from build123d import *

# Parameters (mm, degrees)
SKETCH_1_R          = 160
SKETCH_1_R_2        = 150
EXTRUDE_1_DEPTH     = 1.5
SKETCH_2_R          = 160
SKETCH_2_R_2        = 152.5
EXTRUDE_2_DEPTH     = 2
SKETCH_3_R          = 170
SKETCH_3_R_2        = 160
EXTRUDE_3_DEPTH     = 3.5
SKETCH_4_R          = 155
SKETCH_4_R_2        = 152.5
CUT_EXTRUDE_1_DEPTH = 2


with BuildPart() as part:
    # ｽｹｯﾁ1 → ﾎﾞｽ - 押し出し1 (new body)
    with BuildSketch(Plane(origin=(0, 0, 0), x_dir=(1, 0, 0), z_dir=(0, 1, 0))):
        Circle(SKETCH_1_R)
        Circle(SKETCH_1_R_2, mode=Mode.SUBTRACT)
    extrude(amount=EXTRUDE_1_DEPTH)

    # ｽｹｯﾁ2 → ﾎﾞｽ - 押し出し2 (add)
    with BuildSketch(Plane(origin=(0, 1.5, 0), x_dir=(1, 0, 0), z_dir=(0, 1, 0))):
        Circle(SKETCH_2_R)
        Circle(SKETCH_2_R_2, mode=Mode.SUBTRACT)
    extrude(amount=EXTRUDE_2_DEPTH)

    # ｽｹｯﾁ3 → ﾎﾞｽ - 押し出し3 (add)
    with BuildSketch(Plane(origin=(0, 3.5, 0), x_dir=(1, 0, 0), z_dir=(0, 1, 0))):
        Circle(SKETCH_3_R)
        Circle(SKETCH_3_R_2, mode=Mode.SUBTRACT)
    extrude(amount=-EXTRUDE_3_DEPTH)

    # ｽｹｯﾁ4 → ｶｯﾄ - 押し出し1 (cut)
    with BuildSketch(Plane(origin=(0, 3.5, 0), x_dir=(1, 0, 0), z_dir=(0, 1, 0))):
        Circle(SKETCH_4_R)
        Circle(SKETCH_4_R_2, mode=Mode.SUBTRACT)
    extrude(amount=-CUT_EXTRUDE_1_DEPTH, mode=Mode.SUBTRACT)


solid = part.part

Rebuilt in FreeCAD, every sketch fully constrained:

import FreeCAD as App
import Part
import Sketcher

V = App.Vector

doc = App.newDocument("Part")
params = doc.addObject("Spreadsheet::Sheet", "Params")
for row, (alias, value) in enumerate([
    ("sketch1_diameter", "320 mm"),
    ("sketch1_diameter2", "300 mm"),
    ("pad1_length", "1.5 mm"),
    ("sketch2_diameter", "320 mm"),
    ("sketch2_diameter2", "305 mm"),
    ("pad2_length", "2 mm"),
    ("sketch3_diameter", "340 mm"),
    ("sketch3_diameter2", "320 mm"),
    ("pad3_length", "3.5 mm"),
    ("sketch4_diameter", "310 mm"),
    ("sketch4_diameter2", "305 mm"),
    ("pocket1_length", "2 mm"),
], start=1):
    params.set(f"A{row}", alias)
    params.set(f"B{row}", "=" + value)
    params.setAlias(f"B{row}", alias)

body = doc.addObject("PartDesign::Body", "Body")

sketch1 = body.newObject("Sketcher::SketchObject", "Sketch")
sketch1.AttachmentSupport = (doc.getObject("XZ_Plane"), [""])
sketch1.MapMode = "FlatFace"
sketch1.addGeometry([
    Part.Circle(V(0, 0, 0), V(0, 0, 1), 160),
    Part.Circle(V(0, 0, 0), V(0, 0, 1), 150),
], False)
sketch1.addConstraint([
    Sketcher.Constraint("Coincident", 0, 3, -1, 1),
    Sketcher.Constraint("Coincident", 1, 3, -1, 1),
    Sketcher.Constraint("Diameter", 0, 320.0),
    Sketcher.Constraint("Diameter", 1, 300.0),
])
sketch1.setExpression("Constraints[2]", "Params.sketch1_diameter")
sketch1.setExpression("Constraints[3]", "Params.sketch1_diameter2")
pad1 = body.newObject("PartDesign::Pad", "Pad")
pad1.Profile = sketch1
pad1.setExpression("Length", "Params.pad1_length")
pad1.Reversed = True

sketch2 = body.newObject("Sketcher::SketchObject", "Sketch001")
sketch2.AttachmentSupport = (doc.getObject("XZ_Plane"), [""])
sketch2.MapMode = "FlatFace"
sketch2.AttachmentOffset = App.Placement(V(0, 0, -1.5), App.Rotation())
sketch2.addGeometry([
    Part.Circle(V(0, 0, 0), V(0, 0, 1), 160),
    Part.Circle(V(0, 0, 0), V(0, 0, 1), 152.5),
], False)
sketch2.addConstraint([
    Sketcher.Constraint("Coincident", 0, 3, -1, 1),
    Sketcher.Constraint("Coincident", 1, 3, -1, 1),
    Sketcher.Constraint("Diameter", 0, 320.0),
    Sketcher.Constraint("Diameter", 1, 305.0),
])
sketch2.setExpression("Constraints[2]", "Params.sketch2_diameter")
sketch2.setExpression("Constraints[3]", "Params.sketch2_diameter2")
pad2 = body.newObject("PartDesign::Pad", "Pad001")
pad2.Profile = sketch2
pad2.setExpression("Length", "Params.pad2_length")
pad2.Reversed = True

sketch3 = body.newObject("Sketcher::SketchObject", "Sketch002")
sketch3.AttachmentSupport = (doc.getObject("XZ_Plane"), [""])
sketch3.MapMode = "FlatFace"
sketch3.AttachmentOffset = App.Placement(V(0, 0, -3.5), App.Rotation())
sketch3.addGeometry([
    Part.Circle(V(0, 0, 0), V(0, 0, 1), 170),
    Part.Circle(V(0, 0, 0), V(0, 0, 1), 160),
], False)
sketch3.addConstraint([
    Sketcher.Constraint("Coincident", 0, 3, -1, 1),
    Sketcher.Constraint("Coincident", 1, 3, -1, 1),
    Sketcher.Constraint("Diameter", 0, 340.0),
    Sketcher.Constraint("Diameter", 1, 320.0),
])
sketch3.setExpression("Constraints[2]", "Params.sketch3_diameter")
sketch3.setExpression("Constraints[3]", "Params.sketch3_diameter2")
pad3 = body.newObject("PartDesign::Pad", "Pad002")
pad3.Profile = sketch3
pad3.setExpression("Length", "Params.pad3_length")

sketch4 = body.newObject("Sketcher::SketchObject", "Sketch003")
sketch4.AttachmentSupport = (doc.getObject("XZ_Plane"), [""])
sketch4.MapMode = "FlatFace"
sketch4.AttachmentOffset = App.Placement(V(0, 0, -3.5), App.Rotation())
sketch4.addGeometry([
    Part.Circle(V(0, 0, 0), V(0, 0, 1), 155),
    Part.Circle(V(0, 0, 0), V(0, 0, 1), 152.5),
], False)
sketch4.addConstraint([
    Sketcher.Constraint("Coincident", 0, 3, -1, 1),
    Sketcher.Constraint("Coincident", 1, 3, -1, 1),
    Sketcher.Constraint("Diameter", 0, 310.0),
    Sketcher.Constraint("Diameter", 1, 305.0),
])
sketch4.setExpression("Constraints[2]", "Params.sketch4_diameter")
sketch4.setExpression("Constraints[3]", "Params.sketch4_diameter2")
pocket1 = body.newObject("PartDesign::Pocket", "Pocket")
pocket1.Profile = sketch4
pocket1.setExpression("Length", "Params.pocket1_length")
pocket1.Reversed = True

doc.recompute()
